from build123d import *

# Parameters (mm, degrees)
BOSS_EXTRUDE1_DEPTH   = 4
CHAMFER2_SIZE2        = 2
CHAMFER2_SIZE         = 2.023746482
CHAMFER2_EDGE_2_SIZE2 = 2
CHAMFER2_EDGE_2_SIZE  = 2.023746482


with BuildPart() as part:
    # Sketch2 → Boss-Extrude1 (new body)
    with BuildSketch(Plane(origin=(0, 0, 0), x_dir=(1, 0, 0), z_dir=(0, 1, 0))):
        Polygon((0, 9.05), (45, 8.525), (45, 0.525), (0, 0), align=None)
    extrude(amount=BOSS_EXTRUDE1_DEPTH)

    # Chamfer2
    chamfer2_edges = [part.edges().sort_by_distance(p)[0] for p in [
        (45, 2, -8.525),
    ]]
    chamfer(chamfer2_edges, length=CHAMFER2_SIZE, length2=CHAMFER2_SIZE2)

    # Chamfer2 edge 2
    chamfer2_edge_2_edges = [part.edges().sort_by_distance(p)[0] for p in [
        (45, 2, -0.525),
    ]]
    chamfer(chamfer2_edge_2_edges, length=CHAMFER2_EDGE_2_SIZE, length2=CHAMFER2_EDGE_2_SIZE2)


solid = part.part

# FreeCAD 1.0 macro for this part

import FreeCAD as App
import Part
import Sketcher

V = App.Vector
Q = App.Units.Quantity


def edges_at(feature, points):
    """Names of the edges that pass closest to the given points."""
    edges = feature.Shape.Edges
    near = lambda p: min(range(len(edges)), key=lambda i: edges[i].distToShape(Part.Vertex(*p))[0])
    return sorted({f"Edge{near(p) + 1}" for p in points})


def add_polygon(sketch, points):
    """Adds a closed chain of lines whose ends are joined by coincident constraints."""
    first, n = sketch.GeometryCount, len(points)
    for a, b in zip(points, points[1:] + points[:1]):
        sketch.addGeometry(Part.LineSegment(App.Vector(*a, 0), App.Vector(*b, 0)), False)
    for i in range(n):
        sketch.addConstraint(Sketcher.Constraint("Coincident", first + i, 2, first + (i + 1) % n, 1))

doc = App.newDocument("Part")
body = doc.addObject("PartDesign::Body", "Body")

# Sketch on XZ plane
sketch1 = body.newObject("Sketcher::SketchObject", "Sketch")
sketch1.AttachmentSupport = (doc.getObject("XZ_Plane"), [""])
sketch1.MapMode = "FlatFace"
add_polygon(sketch1, [(45, -9), (0, -9), (0, 0), (45, -1)])  # lines 0-3
sketch1.addConstraint([
    Sketcher.Constraint("Vertical", 1),
    Sketcher.Constraint("Vertical", 3),
    Sketcher.Constraint("Coincident", 1, 2, -1, 1),
    Sketcher.Constraint("Equal", 0, 2),
    Sketcher.Constraint("DistanceY", 3, 2, 3, 1, Q("8 mm")),
    Sketcher.Constraint("DistanceX", -1, 1, 2, 2, Q("45 mm")),
    Sketcher.Constraint("DistanceY", 1, 1, 1, 2, Q("9.05 mm")),
])
pad1 = body.newObject("PartDesign::Pad", "Pad")
pad1.Profile = sketch1
pad1.Length = 4
pad1.Reversed = True
doc.recompute()

chamfer = body.newObject("PartDesign::Chamfer", "Chamfer")
chamfer.Base = (pad1, edges_at(pad1, [(45, 2, -8.525)]))
chamfer.ChamferType = "Two distances"
chamfer.Size = 2.023746
chamfer.Size2 = 2
doc.recompute()

chamfer2 = body.newObject("PartDesign::Chamfer", "Chamfer001")
chamfer2.Base = (chamfer, edges_at(chamfer, [(45, 2, -0.525)]))
chamfer2.ChamferType = "Two distances"
chamfer2.Size = 2.023746
chamfer2.Size2 = 2

doc.recompute()
